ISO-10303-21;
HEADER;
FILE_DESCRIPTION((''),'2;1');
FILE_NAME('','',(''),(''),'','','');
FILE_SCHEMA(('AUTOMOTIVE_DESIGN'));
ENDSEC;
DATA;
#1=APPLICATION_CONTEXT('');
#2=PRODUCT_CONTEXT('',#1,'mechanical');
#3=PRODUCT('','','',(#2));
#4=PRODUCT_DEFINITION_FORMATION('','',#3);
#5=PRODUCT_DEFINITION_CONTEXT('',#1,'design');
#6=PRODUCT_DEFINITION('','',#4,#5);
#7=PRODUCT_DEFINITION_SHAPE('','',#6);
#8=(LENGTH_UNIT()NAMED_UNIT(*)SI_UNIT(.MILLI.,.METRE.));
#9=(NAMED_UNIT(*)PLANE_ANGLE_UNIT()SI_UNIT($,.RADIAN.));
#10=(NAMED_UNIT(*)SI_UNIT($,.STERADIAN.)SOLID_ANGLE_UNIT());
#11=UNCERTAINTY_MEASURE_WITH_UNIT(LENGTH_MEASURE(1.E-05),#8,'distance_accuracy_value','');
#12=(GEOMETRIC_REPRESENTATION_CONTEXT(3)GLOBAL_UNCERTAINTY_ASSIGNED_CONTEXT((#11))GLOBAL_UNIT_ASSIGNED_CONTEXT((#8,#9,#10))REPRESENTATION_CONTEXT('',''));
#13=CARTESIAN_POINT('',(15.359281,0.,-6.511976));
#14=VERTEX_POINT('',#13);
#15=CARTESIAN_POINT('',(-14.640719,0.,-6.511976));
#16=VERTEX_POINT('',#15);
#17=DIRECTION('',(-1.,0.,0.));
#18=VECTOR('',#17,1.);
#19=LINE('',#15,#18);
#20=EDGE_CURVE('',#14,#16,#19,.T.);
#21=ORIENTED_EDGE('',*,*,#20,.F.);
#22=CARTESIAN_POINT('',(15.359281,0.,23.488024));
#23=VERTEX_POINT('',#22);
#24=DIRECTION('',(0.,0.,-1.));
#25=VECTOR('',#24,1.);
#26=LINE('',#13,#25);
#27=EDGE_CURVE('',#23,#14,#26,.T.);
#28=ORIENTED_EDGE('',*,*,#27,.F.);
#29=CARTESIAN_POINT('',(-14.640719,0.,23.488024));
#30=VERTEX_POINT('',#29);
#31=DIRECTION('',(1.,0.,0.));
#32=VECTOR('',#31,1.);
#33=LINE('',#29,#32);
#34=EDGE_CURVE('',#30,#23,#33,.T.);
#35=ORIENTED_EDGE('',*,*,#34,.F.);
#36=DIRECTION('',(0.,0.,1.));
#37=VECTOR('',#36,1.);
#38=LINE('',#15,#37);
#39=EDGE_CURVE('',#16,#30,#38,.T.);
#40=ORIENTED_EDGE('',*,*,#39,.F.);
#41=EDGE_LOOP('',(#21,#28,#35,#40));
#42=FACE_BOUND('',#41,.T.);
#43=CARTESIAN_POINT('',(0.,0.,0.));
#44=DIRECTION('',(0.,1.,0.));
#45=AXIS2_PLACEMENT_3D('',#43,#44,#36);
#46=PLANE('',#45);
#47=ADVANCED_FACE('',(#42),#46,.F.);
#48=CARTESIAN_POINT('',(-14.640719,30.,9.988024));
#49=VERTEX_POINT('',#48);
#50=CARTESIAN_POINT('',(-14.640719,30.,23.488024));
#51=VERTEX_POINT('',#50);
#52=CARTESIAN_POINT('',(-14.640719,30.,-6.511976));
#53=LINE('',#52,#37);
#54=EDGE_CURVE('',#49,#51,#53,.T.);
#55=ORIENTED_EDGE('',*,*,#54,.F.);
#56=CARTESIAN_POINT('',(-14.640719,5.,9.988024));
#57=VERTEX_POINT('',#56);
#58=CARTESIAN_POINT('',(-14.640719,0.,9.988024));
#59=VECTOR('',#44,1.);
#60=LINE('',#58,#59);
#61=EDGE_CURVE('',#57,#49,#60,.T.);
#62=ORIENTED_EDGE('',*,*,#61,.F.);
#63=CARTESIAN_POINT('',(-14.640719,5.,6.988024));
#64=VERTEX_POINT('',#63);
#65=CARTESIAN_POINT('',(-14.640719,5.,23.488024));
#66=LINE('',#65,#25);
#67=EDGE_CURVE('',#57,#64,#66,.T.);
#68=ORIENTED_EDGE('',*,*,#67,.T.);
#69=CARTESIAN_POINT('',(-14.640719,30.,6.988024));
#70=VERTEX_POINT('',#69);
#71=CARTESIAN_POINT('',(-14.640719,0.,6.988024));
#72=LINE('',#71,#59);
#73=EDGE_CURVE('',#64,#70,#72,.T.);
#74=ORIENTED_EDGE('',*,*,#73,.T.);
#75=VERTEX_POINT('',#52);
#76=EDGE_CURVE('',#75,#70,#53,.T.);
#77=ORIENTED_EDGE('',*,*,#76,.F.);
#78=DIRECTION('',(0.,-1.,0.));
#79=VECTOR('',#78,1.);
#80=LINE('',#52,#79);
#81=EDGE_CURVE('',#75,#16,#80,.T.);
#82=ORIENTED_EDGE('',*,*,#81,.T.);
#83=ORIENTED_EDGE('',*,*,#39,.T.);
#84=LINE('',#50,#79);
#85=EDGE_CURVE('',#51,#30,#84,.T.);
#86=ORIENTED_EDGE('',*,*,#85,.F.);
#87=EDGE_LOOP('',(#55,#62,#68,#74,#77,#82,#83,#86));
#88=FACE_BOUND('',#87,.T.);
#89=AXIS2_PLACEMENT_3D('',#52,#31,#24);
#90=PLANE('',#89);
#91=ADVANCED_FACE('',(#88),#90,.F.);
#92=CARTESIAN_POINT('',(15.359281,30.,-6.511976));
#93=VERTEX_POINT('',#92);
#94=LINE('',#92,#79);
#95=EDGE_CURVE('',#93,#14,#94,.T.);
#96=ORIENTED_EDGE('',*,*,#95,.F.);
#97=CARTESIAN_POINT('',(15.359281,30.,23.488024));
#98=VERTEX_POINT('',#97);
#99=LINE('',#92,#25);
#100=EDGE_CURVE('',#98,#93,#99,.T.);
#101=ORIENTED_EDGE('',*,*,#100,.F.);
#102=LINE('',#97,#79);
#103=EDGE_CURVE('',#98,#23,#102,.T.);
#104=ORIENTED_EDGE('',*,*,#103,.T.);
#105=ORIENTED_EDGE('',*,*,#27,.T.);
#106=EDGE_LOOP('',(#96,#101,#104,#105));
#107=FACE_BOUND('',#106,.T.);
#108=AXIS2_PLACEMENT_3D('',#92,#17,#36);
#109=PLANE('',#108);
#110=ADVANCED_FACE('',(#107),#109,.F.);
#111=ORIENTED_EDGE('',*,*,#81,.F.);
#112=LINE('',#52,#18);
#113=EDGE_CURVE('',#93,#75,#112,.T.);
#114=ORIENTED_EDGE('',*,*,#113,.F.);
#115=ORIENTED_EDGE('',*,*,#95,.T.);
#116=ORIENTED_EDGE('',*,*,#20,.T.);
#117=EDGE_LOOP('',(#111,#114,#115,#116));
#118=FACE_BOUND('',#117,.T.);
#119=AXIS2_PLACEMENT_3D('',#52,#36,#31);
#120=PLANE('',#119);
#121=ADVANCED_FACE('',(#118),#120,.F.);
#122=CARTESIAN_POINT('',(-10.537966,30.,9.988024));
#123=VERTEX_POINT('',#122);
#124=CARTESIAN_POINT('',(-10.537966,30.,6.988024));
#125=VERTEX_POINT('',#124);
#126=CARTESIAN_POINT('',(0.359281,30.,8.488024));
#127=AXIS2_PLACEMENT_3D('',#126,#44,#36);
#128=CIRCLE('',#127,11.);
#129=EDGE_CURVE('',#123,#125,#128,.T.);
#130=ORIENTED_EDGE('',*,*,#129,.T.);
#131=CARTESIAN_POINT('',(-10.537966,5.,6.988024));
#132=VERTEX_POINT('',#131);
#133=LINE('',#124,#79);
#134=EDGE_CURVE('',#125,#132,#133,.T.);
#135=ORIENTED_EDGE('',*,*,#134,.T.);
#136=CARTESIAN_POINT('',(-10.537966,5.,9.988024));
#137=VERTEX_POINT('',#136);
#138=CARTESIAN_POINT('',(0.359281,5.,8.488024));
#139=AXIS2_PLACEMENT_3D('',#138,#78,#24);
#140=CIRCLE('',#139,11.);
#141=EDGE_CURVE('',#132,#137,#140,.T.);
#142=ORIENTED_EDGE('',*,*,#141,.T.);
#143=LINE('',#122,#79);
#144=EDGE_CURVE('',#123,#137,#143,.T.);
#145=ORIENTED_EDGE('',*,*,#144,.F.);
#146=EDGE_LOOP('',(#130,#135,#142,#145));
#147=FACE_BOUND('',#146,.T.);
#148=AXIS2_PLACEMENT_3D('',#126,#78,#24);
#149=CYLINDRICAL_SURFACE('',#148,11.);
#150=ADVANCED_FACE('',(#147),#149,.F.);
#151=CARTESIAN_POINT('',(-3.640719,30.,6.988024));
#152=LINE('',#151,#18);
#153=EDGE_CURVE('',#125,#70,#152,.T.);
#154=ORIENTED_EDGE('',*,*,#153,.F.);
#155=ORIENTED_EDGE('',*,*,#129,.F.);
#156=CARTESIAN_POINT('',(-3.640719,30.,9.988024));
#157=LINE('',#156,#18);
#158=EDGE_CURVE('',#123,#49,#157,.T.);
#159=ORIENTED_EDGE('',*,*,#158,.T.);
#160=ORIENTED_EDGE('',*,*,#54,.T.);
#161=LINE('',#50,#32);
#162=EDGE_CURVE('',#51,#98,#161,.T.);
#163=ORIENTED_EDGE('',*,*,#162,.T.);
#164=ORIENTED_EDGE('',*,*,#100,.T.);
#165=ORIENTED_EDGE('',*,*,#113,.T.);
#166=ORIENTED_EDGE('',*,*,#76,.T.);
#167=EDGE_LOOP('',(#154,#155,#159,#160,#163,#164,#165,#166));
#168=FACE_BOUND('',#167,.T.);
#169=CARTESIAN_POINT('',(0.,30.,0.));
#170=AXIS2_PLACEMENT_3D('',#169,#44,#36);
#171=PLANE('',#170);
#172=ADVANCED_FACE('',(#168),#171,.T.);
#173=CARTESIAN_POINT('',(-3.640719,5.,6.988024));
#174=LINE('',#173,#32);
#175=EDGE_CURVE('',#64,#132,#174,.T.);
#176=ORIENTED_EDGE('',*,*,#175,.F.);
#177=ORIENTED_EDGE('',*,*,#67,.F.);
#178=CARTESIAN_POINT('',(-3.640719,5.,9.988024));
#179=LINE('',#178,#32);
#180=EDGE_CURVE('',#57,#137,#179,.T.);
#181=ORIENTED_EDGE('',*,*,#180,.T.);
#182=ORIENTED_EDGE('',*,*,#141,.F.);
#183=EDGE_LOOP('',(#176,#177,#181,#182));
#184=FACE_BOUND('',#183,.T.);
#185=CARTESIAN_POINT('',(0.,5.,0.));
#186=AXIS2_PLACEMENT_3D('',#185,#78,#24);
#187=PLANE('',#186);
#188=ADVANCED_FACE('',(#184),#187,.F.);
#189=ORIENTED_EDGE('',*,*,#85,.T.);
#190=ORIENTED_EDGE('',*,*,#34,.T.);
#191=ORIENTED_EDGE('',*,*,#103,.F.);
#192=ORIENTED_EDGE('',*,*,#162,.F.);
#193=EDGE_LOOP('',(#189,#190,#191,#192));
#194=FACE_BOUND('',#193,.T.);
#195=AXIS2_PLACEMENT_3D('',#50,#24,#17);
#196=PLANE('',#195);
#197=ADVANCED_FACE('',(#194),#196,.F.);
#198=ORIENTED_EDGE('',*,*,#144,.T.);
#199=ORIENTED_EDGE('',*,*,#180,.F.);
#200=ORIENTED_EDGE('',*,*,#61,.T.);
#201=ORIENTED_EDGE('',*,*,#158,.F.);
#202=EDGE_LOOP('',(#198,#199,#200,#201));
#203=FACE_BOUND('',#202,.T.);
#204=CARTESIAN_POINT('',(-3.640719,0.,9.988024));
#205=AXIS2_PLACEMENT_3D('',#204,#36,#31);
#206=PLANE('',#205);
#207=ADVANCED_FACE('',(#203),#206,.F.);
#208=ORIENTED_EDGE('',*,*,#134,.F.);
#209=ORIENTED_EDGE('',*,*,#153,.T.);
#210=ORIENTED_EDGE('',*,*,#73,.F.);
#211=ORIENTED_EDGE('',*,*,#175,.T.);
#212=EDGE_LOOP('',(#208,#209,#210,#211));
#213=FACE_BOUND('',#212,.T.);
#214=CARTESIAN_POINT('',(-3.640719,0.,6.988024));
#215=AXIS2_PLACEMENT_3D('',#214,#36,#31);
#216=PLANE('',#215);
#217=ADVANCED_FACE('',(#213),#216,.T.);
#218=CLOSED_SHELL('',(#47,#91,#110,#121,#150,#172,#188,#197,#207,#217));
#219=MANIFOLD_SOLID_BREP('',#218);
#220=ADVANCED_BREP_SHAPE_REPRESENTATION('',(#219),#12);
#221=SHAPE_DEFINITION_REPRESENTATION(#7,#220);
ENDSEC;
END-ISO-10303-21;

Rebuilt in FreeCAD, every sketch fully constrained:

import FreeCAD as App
import Part
import Sketcher
from FreeCAD import Vector


def add_polygon(sketch, points):
    """Adds a closed chain of lines whose ends are joined by coincident constraints."""
    first, n = sketch.GeometryCount, len(points)
    for a, b in zip(points, points[1:] + points[:1]):
        sketch.addGeometry(Part.LineSegment(App.Vector(*a, 0), App.Vector(*b, 0)), False)
    for i in range(n):
        sketch.addConstraint(Sketcher.Constraint("Coincident", first + i, 2, first + (i + 1) % n, 1))

doc = App.newDocument("Part")
params = doc.addObject("Spreadsheet::Sheet", "Params")
for row, (alias, value) in enumerate([
    ("sketch1_diameter", "22 mm"),
    ("sketch1_width", "30 mm"),
    ("pad1_length", "30 mm"),
    ("sketch2_width", "30 mm"),
    ("sketch2_height", "3 mm"),
    ("pocket1_length", "11 mm"),
    ("sketch3_width", "30 mm"),
    ("pad2_length", "5 mm"),
], start=1):
    params.set(f"A{row}", alias)
    params.set(f"B{row}", "=" + value)
    params.setAlias(f"B{row}", alias)

body = doc.addObject("PartDesign::Body", "Body")

# Sketch on XZ plane
sketch1 = body.newObject("Sketcher::SketchObject", "Sketch")
sketch1.AttachmentSupport = (doc.getObject("XZ_Plane"), [""])
sketch1.MapMode = "FlatFace"
add_polygon(sketch1, [(-15, -7), (-15, 23), (15, 23), (15, -7)])  # lines 0-3
sketch1.addGeometry(Part.Circle(Vector(0, 8, 0), Vector(0, 0, 1), 11), False)  # 4
sketch1.addConstraint(Sketcher.Constraint("Vertical", 0))
sketch1.addConstraint(Sketcher.Constraint("Horizontal", 1))
sketch1.addConstraint(Sketcher.Constraint("Vertical", 2))
sketch1.addConstraint(Sketcher.Constraint("Horizontal", 3))
sketch1.addConstraint(Sketcher.Constraint("Equal", 3, 0))
sketch1.addConstraint(Sketcher.Constraint("Diameter", 4, 22.0))
sketch1.addConstraint(Sketcher.Constraint("DistanceX", 1, 1, 1, 2, 30.0))
sketch1.addConstraint(Sketcher.Constraint("DistanceX", 0, 2, 4, 3, 15.0))
sketch1.addConstraint(Sketcher.Constraint("DistanceY", 4, 3, 0, 2, 15.0))
sketch1.addConstraint(Sketcher.Constraint("DistanceX", -1, 1, 4, 3, 0.359281))
sketch1.addConstraint(Sketcher.Constraint("DistanceY", -1, 1, 4, 3, 8.488024))
sketch1.setExpression("Constraints[9]", "Params.sketch1_diameter")
sketch1.setExpression("Constraints[10]", "Params.sketch1_width")
pad1 = body.newObject("PartDesign::Pad", "Pad")
pad1.Profile = sketch1
pad1.setExpression("Length", "Params.pad1_length")
pad1.Reversed = True

# Sketch on YZ plane
sketch2 = body.newObject("Sketcher::SketchObject", "Sketch001")
sketch2.AttachmentSupport = (doc.getObject("YZ_Plane"), [""])
sketch2.MapMode = "FlatFace"
sketch2.AttachmentOffset = App.Placement(Vector(0, 0, -14.640719), App.Rotation())
add_polygon(sketch2, [(30, 7), (0, 7), (0, 10), (30, 10)])  # lines 0-3
sketch2.addConstraint(Sketcher.Constraint("Horizontal", 0))
sketch2.addConstraint(Sketcher.Constraint("Vertical", 1))
sketch2.addConstraint(Sketcher.Constraint("Horizontal", 2))
sketch2.addConstraint(Sketcher.Constraint("Vertical", 3))
sketch2.addConstraint(Sketcher.Constraint("PointOnObject", 0, 2, -2))
sketch2.addConstraint(Sketcher.Constraint("DistanceX", 0, 2, 0, 1, 30.0))
sketch2.addConstraint(Sketcher.Constraint("DistanceY", 1, 1, 1, 2, 3.0))
sketch2.addConstraint(Sketcher.Constraint("DistanceY", -1, 1, 0, 2, 6.988024))
sketch2.setExpression("Constraints[9]", "Params.sketch2_width")
sketch2.setExpression("Constraints[10]", "Params.sketch2_height")
pocket1 = body.newObject("PartDesign::Pocket", "Pocket")
pocket1.Profile = sketch2
pocket1.setExpression("Length", "Params.pocket1_length")
pocket1.Reversed = True

# Sketch on XZ plane
sketch3 = body.newObject("Sketcher::SketchObject", "Sketch002")
sketch3.AttachmentSupport = (doc.getObject("XZ_Plane"), [""])
sketch3.MapMode = "FlatFace"
add_polygon(sketch3, [(-15, 23), (-15, -7), (15, -7), (15, 23)])  # lines 0-3
sketch3.addConstraint(Sketcher.Constraint("Vertical", 0))
sketch3.addConstraint(Sketcher.Constraint("Horizontal", 1))
sketch3.addConstraint(Sketcher.Constraint("Vertical", 2))
sketch3.addConstraint(Sketcher.Constraint("Horizontal", 3))
sketch3.addConstraint(Sketcher.Constraint("Equal", 3, 0))
sketch3.addConstraint(Sketcher.Constraint("DistanceX", 1, 1, 1, 2, 30.0))
sketch3.addConstraint(Sketcher.Constraint("DistanceX", 0, 2, -1, 1, 14.640719))
sketch3.addConstraint(Sketcher.Constraint("DistanceY", 0, 2, -1, 1, 6.511976))
sketch3.setExpression("Constraints[9]", "Params.sketch3_width")
pad2 = body.newObject("PartDesign::Pad", "Pad001")
pad2.Profile = sketch3
pad2.setExpression("Length", "Params.pad2_length")
pad2.Reversed = True

doc.recompute()
